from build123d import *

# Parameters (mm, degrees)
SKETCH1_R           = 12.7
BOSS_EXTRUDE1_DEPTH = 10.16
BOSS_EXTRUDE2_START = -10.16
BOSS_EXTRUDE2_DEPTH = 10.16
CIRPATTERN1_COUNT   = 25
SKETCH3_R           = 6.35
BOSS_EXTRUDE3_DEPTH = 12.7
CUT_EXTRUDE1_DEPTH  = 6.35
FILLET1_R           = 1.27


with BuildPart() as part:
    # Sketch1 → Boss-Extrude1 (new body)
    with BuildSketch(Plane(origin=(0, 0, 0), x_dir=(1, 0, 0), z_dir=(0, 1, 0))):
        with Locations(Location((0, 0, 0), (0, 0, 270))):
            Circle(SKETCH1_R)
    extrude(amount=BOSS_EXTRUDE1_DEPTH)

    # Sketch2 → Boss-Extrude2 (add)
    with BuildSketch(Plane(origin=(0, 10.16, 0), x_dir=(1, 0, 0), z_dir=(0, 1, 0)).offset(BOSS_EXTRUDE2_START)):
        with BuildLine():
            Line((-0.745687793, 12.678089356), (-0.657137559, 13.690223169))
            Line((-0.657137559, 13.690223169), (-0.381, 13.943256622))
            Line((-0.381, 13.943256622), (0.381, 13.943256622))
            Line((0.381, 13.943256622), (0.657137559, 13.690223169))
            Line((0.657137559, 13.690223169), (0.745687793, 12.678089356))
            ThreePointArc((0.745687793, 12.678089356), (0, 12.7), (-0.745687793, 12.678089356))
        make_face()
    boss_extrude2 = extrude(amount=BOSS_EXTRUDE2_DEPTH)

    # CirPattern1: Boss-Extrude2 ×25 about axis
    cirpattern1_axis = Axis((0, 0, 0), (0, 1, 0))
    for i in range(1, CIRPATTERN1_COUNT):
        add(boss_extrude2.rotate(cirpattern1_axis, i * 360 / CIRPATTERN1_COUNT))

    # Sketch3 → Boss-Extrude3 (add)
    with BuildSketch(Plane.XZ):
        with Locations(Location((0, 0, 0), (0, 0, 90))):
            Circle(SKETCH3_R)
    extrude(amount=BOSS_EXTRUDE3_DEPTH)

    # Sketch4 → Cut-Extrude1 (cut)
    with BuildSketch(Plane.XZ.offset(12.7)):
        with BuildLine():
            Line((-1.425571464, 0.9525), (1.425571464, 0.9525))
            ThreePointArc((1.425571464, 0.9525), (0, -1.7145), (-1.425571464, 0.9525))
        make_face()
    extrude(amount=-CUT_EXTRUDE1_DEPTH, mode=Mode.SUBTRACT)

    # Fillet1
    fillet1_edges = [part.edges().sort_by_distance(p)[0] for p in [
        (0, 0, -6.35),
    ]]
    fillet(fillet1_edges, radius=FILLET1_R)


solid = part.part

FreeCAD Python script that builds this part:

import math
import FreeCAD as App
import Part
import Sketcher

V = App.Vector
Q = App.Units.Quantity


def edges_at(feature, points):
    """Names of the edges that pass closest to the given points."""
    edges = feature.Shape.Edges
    near = lambda p: min(range(len(edges)), key=lambda i: edges[i].distToShape(Part.Vertex(*p))[0])
    return sorted({f"Edge{near(p) + 1}" for p in points})

doc = App.newDocument("Part")
params = doc.addObject("Spreadsheet::Sheet", "Params")
for row, (alias, value) in enumerate([
    ("sketch1_diameter", "1 in"),
    ("pad1_length", "0.4 in"),
    ("sketch2_radius", "0.5 in"),
    ("sketch2_width", "0.03 in"),
    ("sketch2_length", "0.04 in"),
    ("pad2_length", "0.4 in"),
    ("sketch3_diameter", "0.5 in"),
    ("pad3_length", "0.5 in"),
    ("pocket1_length", "0.25 in"),
    ("fillet_radius", "0.05 in"),
], start=1):
    params.set(f"A{row}", alias)
    params.set(f"B{row}", "=" + value)
    params.setAlias(f"B{row}", alias)

body = doc.addObject("PartDesign::Body", "Body")

# Sketch on XZ plane
sketch1 = body.newObject("Sketcher::SketchObject", "Sketch")
sketch1.AttachmentSupport = (doc.getObject("XZ_Plane"), [""])
sketch1.MapMode = "FlatFace"
sketch1.addGeometry(Part.Circle(V(0, 0, 0), V(0, 0, 1), 12.7), False)
sketch1.addConstraint(Sketcher.Constraint("Coincident", 0, 3, -1, 1))
sketch1.addConstraint(Sketcher.Constraint("Diameter", 0, Q("1 in")))
sketch1.setExpression("Constraints[1]", "Params.sketch1_diameter")
pad1 = body.newObject("PartDesign::Pad", "Pad")
pad1.Profile = sketch1
pad1.setExpression("Length", "Params.pad1_length")
pad1.Reversed = True

# Sketch on XZ plane
sketch2 = body.newObject("Sketcher::SketchObject", "Sketch001")
sketch2.AttachmentSupport = (doc.getObject("XZ_Plane"), [""])
sketch2.MapMode = "FlatFace"
sketch2.addGeometry(Part.LineSegment(V(-0.657138, -13.690223, 0), V(-0.745688, -12.678089, 0)), False)
sketch2.addGeometry(Part.ArcOfCircle(Part.Circle(V(0, 0, 0), V(0, 0, 1), 12.7), math.radians(-93.366091), math.radians(-86.633909)), False)
sketch2.addGeometry(Part.LineSegment(V(0.745688, -12.678089, 0), V(0.657138, -13.690223, 0)), False)
sketch2.addGeometry(Part.LineSegment(V(0.657138, -13.690223, 0), V(0.381, -13.943257, 0)), False)
sketch2.addGeometry(Part.LineSegment(V(0.381, -13.943257, 0), V(-0.381, -13.943257, 0)), False)
sketch2.addGeometry(Part.LineSegment(V(-0.381, -13.943257, 0), V(-0.657138, -13.690223, 0)), False)
sketch2.addConstraint(Sketcher.Constraint("Coincident", 0, 2, 1, 1))
sketch2.addConstraint(Sketcher.Constraint("Coincident", 1, 2, 2, 1))
sketch2.addConstraint(Sketcher.Constraint("Coincident", 2, 2, 3, 1))
sketch2.addConstraint(Sketcher.Constraint("Coincident", 3, 2, 4, 1))
sketch2.addConstraint(Sketcher.Constraint("Coincident", 4, 2, 5, 1))
sketch2.addConstraint(Sketcher.Constraint("Coincident", 5, 2, 0, 1))
sketch2.addConstraint(Sketcher.Constraint("Horizontal", 4))
sketch2.addConstraint(Sketcher.Constraint("Coincident", 1, 3, -1, 1))
sketch2.addConstraint(Sketcher.Constraint("Symmetric", 2, 2, 5, 2, -2))
sketch2.addConstraint(Sketcher.Constraint("Horizontal", 0, 2, 1, 2))
sketch2.addConstraint(Sketcher.Constraint("Equal", 3, 5))
sketch2.addConstraint(Sketcher.Constraint("Radius", 1, Q("0.5 in")))
sketch2.addConstraint(Sketcher.Constraint("Angle", 0, Q("95 deg")))
sketch2.addConstraint(Sketcher.Constraint("DistanceX", 4, 2, 4, 1, Q("0.03 in")))
sketch2.addConstraint(Sketcher.Constraint("Angle", 3, Q("-137.5 deg")))
sketch2.addConstraint(Sketcher.Constraint("Distance", 0, Q("0.04 in")))
sketch2.addConstraint(Sketcher.Constraint("DistanceY", 0, 2, -1, 1, 12.678089))
sketch2.setExpression("Constraints[11]", "Params.sketch2_radius")
sketch2.setExpression("Constraints[13]", "Params.sketch2_width")
sketch2.setExpression("Constraints[15]", "Params.sketch2_length")
pad2 = body.newObject("PartDesign::Pad", "Pad001")
pad2.Profile = sketch2
pad2.setExpression("Length", "Params.pad2_length")
pad2.Reversed = True
doc.recompute()

polarpattern = body.newObject("PartDesign::PolarPattern", "PolarPattern")
polarpattern.Originals = [pad2]
polarpattern.Axis = (doc.getObject("Y_Axis"), [""])
polarpattern.Angle = 360
polarpattern.Occurrences = 25
body.Tip = polarpattern

# Sketch on XZ plane
sketch3 = body.newObject("Sketcher::SketchObject", "Sketch002")
sketch3.AttachmentSupport = (doc.getObject("XZ_Plane"), [""])
sketch3.MapMode = "FlatFace"
sketch3.addGeometry(Part.Circle(V(0, 0, 0), V(0, 0, 1), 6.35), False)
sketch3.addConstraint(Sketcher.Constraint("Coincident", 0, 3, -1, 1))
sketch3.addConstraint(Sketcher.Constraint("Diameter", 0, Q("0.5 in")))
sketch3.setExpression("Constraints[1]", "Params.sketch3_diameter")
pad3 = body.newObject("PartDesign::Pad", "Pad002")
pad3.Profile = sketch3
pad3.setExpression("Length", "Params.pad3_length")

# Sketch on XZ plane
sketch4 = body.newObject("Sketcher::SketchObject", "Sketch003")
sketch4.AttachmentSupport = (doc.getObject("XZ_Plane"), [""])
sketch4.MapMode = "FlatFace"
sketch4.AttachmentOffset = App.Placement(V(0, 0, 0.5 * 25.4), App.Rotation())
sketch4.addGeometry(Part.LineSegment(V(1.425571, 0.9525, 0), V(-1.425571, 0.9525, 0)), False)
sketch4.addGeometry(Part.ArcOfCircle(Part.Circle(V(0, 0, 0), V(0, 0, 1), 1.7145), math.radians(146.251011), math.radians(393.748989)), False)
sketch4.addConstraint(Sketcher.Constraint("Coincident", 0, 1, 1, 2))
sketch4.addConstraint(Sketcher.Constraint("Coincident", 1, 1, 0, 2))
sketch4.addConstraint(Sketcher.Constraint("Horizontal", 0))
sketch4.addConstraint(Sketcher.Constraint("Coincident", 1, 3, -1, 1))
sketch4.addConstraint(Sketcher.Constraint("Radius", 1, Q("0.0675 in")))
sketch4.addConstraint(Sketcher.Constraint("DistanceY", -1, 1, 0, 1, Q("0.0375 in")))
pocket1 = body.newObject("PartDesign::Pocket", "Pocket")
pocket1.Profile = sketch4
pocket1.setExpression("Length", "Params.pocket1_length")
doc.recompute()

fillet = body.newObject("PartDesign::Fillet", "Fillet")
fillet.Base = (pocket1, edges_at(pocket1, [(0, 0, -6.35)]))
fillet.setExpression("Radius", "Params.fillet_radius")

doc.recompute()
